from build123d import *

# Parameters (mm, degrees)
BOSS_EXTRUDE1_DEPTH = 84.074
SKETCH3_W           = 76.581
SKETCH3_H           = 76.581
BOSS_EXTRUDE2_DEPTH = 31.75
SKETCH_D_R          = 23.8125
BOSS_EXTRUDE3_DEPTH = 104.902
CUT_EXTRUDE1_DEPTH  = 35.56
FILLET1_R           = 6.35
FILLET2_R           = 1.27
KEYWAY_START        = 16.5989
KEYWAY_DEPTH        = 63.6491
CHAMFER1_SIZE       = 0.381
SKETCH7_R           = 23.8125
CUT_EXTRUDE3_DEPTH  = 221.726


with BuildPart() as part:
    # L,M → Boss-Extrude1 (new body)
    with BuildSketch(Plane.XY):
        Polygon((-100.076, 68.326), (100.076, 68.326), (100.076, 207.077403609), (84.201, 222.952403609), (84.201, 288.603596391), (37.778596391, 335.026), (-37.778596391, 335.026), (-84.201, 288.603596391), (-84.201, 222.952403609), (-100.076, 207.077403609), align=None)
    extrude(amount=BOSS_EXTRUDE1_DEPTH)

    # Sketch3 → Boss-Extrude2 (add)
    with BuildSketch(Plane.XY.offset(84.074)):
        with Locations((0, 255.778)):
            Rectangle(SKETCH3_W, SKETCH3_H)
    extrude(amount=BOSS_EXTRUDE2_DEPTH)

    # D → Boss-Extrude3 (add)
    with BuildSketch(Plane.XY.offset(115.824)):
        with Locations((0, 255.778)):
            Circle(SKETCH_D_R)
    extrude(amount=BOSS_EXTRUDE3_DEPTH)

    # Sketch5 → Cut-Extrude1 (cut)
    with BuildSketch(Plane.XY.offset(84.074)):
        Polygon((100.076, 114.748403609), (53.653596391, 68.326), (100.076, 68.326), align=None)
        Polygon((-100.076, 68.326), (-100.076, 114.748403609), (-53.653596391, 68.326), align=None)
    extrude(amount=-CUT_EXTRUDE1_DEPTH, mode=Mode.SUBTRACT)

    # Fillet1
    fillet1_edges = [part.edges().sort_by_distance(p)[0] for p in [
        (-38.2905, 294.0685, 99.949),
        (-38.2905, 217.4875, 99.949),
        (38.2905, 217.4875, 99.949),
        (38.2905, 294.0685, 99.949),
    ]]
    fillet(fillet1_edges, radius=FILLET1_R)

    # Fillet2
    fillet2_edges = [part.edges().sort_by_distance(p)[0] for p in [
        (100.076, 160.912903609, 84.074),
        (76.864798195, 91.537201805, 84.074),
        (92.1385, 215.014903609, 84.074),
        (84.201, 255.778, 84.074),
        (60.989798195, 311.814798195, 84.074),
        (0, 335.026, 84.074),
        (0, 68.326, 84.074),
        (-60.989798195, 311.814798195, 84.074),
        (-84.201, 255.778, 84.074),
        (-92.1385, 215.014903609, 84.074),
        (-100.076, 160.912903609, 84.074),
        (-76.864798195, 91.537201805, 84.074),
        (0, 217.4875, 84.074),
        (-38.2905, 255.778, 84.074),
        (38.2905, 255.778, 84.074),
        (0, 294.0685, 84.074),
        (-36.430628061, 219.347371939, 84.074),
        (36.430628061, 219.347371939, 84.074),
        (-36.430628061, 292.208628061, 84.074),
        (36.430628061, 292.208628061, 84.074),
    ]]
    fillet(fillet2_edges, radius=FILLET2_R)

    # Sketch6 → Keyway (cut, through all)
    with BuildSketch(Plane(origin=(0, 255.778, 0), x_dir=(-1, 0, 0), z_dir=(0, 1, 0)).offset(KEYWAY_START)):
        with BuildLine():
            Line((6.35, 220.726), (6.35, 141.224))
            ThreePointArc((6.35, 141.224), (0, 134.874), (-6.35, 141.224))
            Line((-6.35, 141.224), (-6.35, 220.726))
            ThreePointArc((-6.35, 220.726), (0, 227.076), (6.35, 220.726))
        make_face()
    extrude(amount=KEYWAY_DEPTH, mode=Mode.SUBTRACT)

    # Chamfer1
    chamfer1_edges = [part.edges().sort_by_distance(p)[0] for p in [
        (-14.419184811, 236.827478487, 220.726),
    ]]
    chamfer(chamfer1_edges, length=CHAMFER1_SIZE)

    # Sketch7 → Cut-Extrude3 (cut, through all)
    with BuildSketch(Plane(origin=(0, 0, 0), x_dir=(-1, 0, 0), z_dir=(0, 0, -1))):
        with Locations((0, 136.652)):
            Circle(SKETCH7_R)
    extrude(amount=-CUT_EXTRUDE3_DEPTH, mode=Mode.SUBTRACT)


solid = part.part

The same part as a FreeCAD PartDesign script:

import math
import FreeCAD as App
import Part
import Sketcher
from FreeCAD import Vector
Q = App.Units.Quantity


def edges_at(feature, points):
    """Names of the edges that pass closest to the given points."""
    edges = feature.Shape.Edges
    near = lambda p: min(range(len(edges)), key=lambda i: edges[i].distToShape(Part.Vertex(*p))[0])
    return sorted({f"Edge{near(p) + 1}" for p in points})

doc = App.newDocument("Part")
body = doc.addObject("PartDesign::Body", "Body")

sketch1 = body.newObject("Sketcher::SketchObject", "Sketch")
sketch1.AttachmentSupport = (doc.getObject("XY_Plane"), [""])
sketch1.MapMode = "FlatFace"
sketch1.addGeometry(Part.LineSegment(Vector(-100.076, 68.326, 0), Vector(100.076, 68.326, 0)), False)
sketch1.addGeometry(Part.LineSegment(Vector(100.076, 68.326, 0), Vector(100.076, 207.077404, 0)), False)
sketch1.addGeometry(Part.LineSegment(Vector(100.076, 207.077404, 0), Vector(84.201, 222.952404, 0)), False)
sketch1.addGeometry(Part.LineSegment(Vector(84.201, 222.952404, 0), Vector(84.201, 288.603596, 0)), False)
sketch1.addGeometry(Part.LineSegment(Vector(84.201, 288.603596, 0), Vector(37.778596, 335.026, 0)), False)
sketch1.addGeometry(Part.LineSegment(Vector(37.778596, 335.026, 0), Vector(-37.778596, 335.026, 0)), False)
sketch1.addGeometry(Part.LineSegment(Vector(-37.778596, 335.026, 0), Vector(-84.201, 288.603596, 0)), False)
sketch1.addGeometry(Part.LineSegment(Vector(-84.201, 288.603596, 0), Vector(-84.201, 222.952404, 0)), False)
sketch1.addGeometry(Part.LineSegment(Vector(-84.201, 222.952404, 0), Vector(-100.076, 207.077404, 0)), False)
sketch1.addGeometry(Part.LineSegment(Vector(-100.076, 207.077404, 0), Vector(-100.076, 68.326, 0)), False)
sketch1.addConstraint(Sketcher.Constraint("Coincident", 0, 2, 1, 1))
sketch1.addConstraint(Sketcher.Constraint("Coincident", 1, 2, 2, 1))
sketch1.addConstraint(Sketcher.Constraint("Coincident", 2, 2, 3, 1))
sketch1.addConstraint(Sketcher.Constraint("Coincident", 3, 2, 4, 1))
sketch1.addConstraint(Sketcher.Constraint("Coincident", 4, 2, 5, 1))
sketch1.addConstraint(Sketcher.Constraint("Coincident", 5, 2, 6, 1))
sketch1.addConstraint(Sketcher.Constraint("Coincident", 6, 2, 7, 1))
sketch1.addConstraint(Sketcher.Constraint("Coincident", 7, 2, 8, 1))
sketch1.addConstraint(Sketcher.Constraint("Coincident", 8, 2, 9, 1))
sketch1.addConstraint(Sketcher.Constraint("Coincident", 9, 2, 0, 1))
sketch1.addConstraint(Sketcher.Constraint("Horizontal", 0))
sketch1.addConstraint(Sketcher.Constraint("Vertical", 1))
sketch1.addConstraint(Sketcher.Constraint("Vertical", 3))
sketch1.addConstraint(Sketcher.Constraint("Horizontal", 5))
sketch1.addConstraint(Sketcher.Constraint("Vertical", 7))
sketch1.addConstraint(Sketcher.Constraint("Vertical", 9))
sketch1.addConstraint(Sketcher.Constraint("Symmetric", 3, 2, 6, 2, -2))
sketch1.addConstraint(Sketcher.Constraint("Symmetric", 1, 2, 8, 2, -2))
sketch1.addConstraint(Sketcher.Constraint("Parallel", 2, 4))
sketch1.addConstraint(Sketcher.Constraint("Perpendicular", 4, 6))
sketch1.addConstraint(Sketcher.Constraint("Parallel", 6, 8))
sketch1.addConstraint(Sketcher.Constraint("Horizontal", 2, 2, 7, 2))
sketch1.addConstraint(Sketcher.Constraint("DistanceX", 0, 1, 0, 2, Q("7.88 in")))
sketch1.addConstraint(Sketcher.Constraint("DistanceY", 0, 2, 4, 2, Q("10.5 in")))
sketch1.addConstraint(Sketcher.Constraint("DistanceY", -1, 1, 0, 2, Q("2.69 in")))
sketch1.addConstraint(Sketcher.Constraint("DistanceX", 6, 2, 3, 2, Q("6.63 in")))
sketch1.addConstraint(Sketcher.Constraint("DistanceX", 5, 2, 5, 1, Q("75.557193 mm")))
sketch1.addConstraint(Sketcher.Constraint("DistanceY", 1, 1, 1, 2, Q("138.751404 mm")))
pad1 = body.newObject("PartDesign::Pad", "Pad")
pad1.Profile = sketch1
pad1.Length = Q("3.31 in")

sketch2 = body.newObject("Sketcher::SketchObject", "Sketch001")
sketch2.AttachmentSupport = (doc.getObject("XY_Plane"), [""])
sketch2.MapMode = "FlatFace"
sketch2.AttachmentOffset = App.Placement(Vector(0, 0, 3.31 * 25.4), App.Rotation())
sketch2.addGeometry(Part.LineSegment(Vector(-38.2905, 294.0685, 0), Vector(-38.2905, 217.4875, 0)), False)
sketch2.addGeometry(Part.LineSegment(Vector(-38.2905, 217.4875, 0), Vector(38.2905, 217.4875, 0)), False)
sketch2.addGeometry(Part.LineSegment(Vector(38.2905, 217.4875, 0), Vector(38.2905, 294.0685, 0)), False)
sketch2.addGeometry(Part.LineSegment(Vector(38.2905, 294.0685, 0), Vector(-38.2905, 294.0685, 0)), False)
sketch2.addConstraint(Sketcher.Constraint("Coincident", 0, 2, 1, 1))
sketch2.addConstraint(Sketcher.Constraint("Coincident", 1, 2, 2, 1))
sketch2.addConstraint(Sketcher.Constraint("Coincident", 2, 2, 3, 1))
sketch2.addConstraint(Sketcher.Constraint("Coincident", 3, 2, 0, 1))
sketch2.addConstraint(Sketcher.Constraint("Vertical", 0))
sketch2.addConstraint(Sketcher.Constraint("Horizontal", 1))
sketch2.addConstraint(Sketcher.Constraint("Vertical", 2))
sketch2.addConstraint(Sketcher.Constraint("Horizontal", 3))
sketch2.addConstraint(Sketcher.Constraint("Equal", 3, 0))
sketch2.addConstraint(Sketcher.Constraint("DistanceX", 1, 1, 1, 2, Q("3.015 in")))
sketch2.addConstraint(Sketcher.Constraint("DistanceY", -1, 1, 0, 2, Q("8.5625 in")))
sketch2.addConstraint(Sketcher.Constraint("DistanceX", 0, 2, -1, 1, Q("1.5075 in")))
pad2 = body.newObject("PartDesign::Pad", "Pad001")
pad2.Profile = sketch2
pad2.Length = Q("1.25 in")

sketch3 = body.newObject("Sketcher::SketchObject", "Sketch002")
sketch3.AttachmentSupport = (doc.getObject("XY_Plane"), [""])
sketch3.MapMode = "FlatFace"
sketch3.AttachmentOffset = App.Placement(Vector(0, 0, 4.56 * 25.4), App.Rotation())
sketch3.addGeometry(Part.Circle(Vector(0, 255.778, 0), Vector(0, 0, 1), 23.8125), False)
sketch3.addConstraint(Sketcher.Constraint("PointOnObject", 0, 3, -2))
sketch3.addConstraint(Sketcher.Constraint("Diameter", 0, Q("1.875 in")))
sketch3.addConstraint(Sketcher.Constraint("DistanceY", -1, 1, 0, 3, Q("10.07 in")))
pad3 = body.newObject("PartDesign::Pad", "Pad002")
pad3.Profile = sketch3
pad3.Length = Q("4.13 in")

sketch4 = body.newObject("Sketcher::SketchObject", "Sketch003")
sketch4.AttachmentSupport = (doc.getObject("XY_Plane"), [""])
sketch4.MapMode = "FlatFace"
sketch4.AttachmentOffset = App.Placement(Vector(0, 0, 3.31 * 25.4), App.Rotation())
sketch4.addGeometry(Part.LineSegment(Vector(100.076, 114.748404, 0), Vector(53.653596, 68.326, 0)), False)
sketch4.addGeometry(Part.LineSegment(Vector(53.653596, 68.326, 0), Vector(100.076, 68.326, 0)), False)
sketch4.addGeometry(Part.LineSegment(Vector(100.076, 68.326, 0), Vector(100.076, 114.748404, 0)), False)
sketch4.addGeometry(Part.LineSegment(Vector(-100.076, 114.748404, 0), Vector(-100.076, 68.326, 0)), False)
sketch4.addGeometry(Part.LineSegment(Vector(-100.076, 68.326, 0), Vector(-53.653596, 68.326, 0)), False)
sketch4.addGeometry(Part.LineSegment(Vector(-53.653596, 68.326, 0), Vector(-100.076, 114.748404, 0)), False)
sketch4.addConstraint(Sketcher.Constraint("Coincident", 0, 2, 1, 1))
sketch4.addConstraint(Sketcher.Constraint("Coincident", 1, 2, 2, 1))
sketch4.addConstraint(Sketcher.Constraint("Coincident", 2, 2, 0, 1))
sketch4.addConstraint(Sketcher.Constraint("Coincident", 3, 2, 4, 1))
sketch4.addConstraint(Sketcher.Constraint("Coincident", 4, 2, 5, 1))
sketch4.addConstraint(Sketcher.Constraint("Coincident", 5, 2, 3, 1))
sketch4.addConstraint(Sketcher.Constraint("Horizontal", 1))
sketch4.addConstraint(Sketcher.Constraint("Vertical", 2))
sketch4.addConstraint(Sketcher.Constraint("Vertical", 3))
sketch4.addConstraint(Sketcher.Constraint("Horizontal", 4))
sketch4.addConstraint(Sketcher.Constraint("Symmetric", 1, 2, 3, 2, -2))
sketch4.addConstraint(Sketcher.Constraint("Perpendicular", 0, 5))
sketch4.addConstraint(Sketcher.Constraint("Horizontal", 2, 2, 5, 2))
sketch4.addConstraint(Sketcher.Constraint("Equal", 1, 4))
sketch4.addConstraint(Sketcher.Constraint("DistanceY", -1, 1, 0, 2, Q("2.69 in")))
sketch4.addConstraint(Sketcher.Constraint("DistanceX", -1, 1, 1, 2, Q("3.94 in")))
sketch4.addConstraint(Sketcher.Constraint("DistanceX", 1, 1, 1, 2, Q("46.422404 mm")))
pocket1 = body.newObject("PartDesign::Pocket", "Pocket")
pocket1.Profile = sketch4
pocket1.Length = Q("1.4 in")
doc.recompute()

fillet = body.newObject("PartDesign::Fillet", "Fillet")
fillet.Base = (pocket1, edges_at(pocket1, [
    (-38.291, 294.068, 99.949),
    (-38.291, 217.488, 99.949),
    (38.291, 217.488, 99.949),
    (38.291, 294.068, 99.949),
]))
fillet.Radius = Q("0.25 in")
doc.recompute()

fillet2 = body.newObject("PartDesign::Fillet", "Fillet001")
fillet2.Base = (fillet, edges_at(fillet, [
    (100.076, 160.913, 84.074),
    (76.865, 91.537, 84.074),
    (92.138, 215.015, 84.074),
    (84.201, 255.778, 84.074),
    (60.99, 311.815, 84.074),
    (0, 335.026, 84.074),
    (0, 68.326, 84.074),
    (-60.99, 311.815, 84.074),
    (-84.201, 255.778, 84.074),
    (-92.138, 215.015, 84.074),
    (-100.076, 160.913, 84.074),
    (-76.865, 91.537, 84.074),
    (0, 217.488, 84.074),
    (-38.291, 255.778, 84.074),
    (38.291, 255.778, 84.074),
    (0, 294.068, 84.074),
    (-36.431, 219.347, 84.074),
    (36.431, 219.347, 84.074),
    (-36.431, 292.209, 84.074),
    (36.431, 292.209, 84.074),
]))
fillet2.Radius = Q("0.05 in")

sketch5 = body.newObject("Sketcher::SketchObject", "Sketch004")
sketch5.AttachmentSupport = (doc.getObject("XZ_Plane"), [""])
sketch5.MapMode = "FlatFace"
sketch5.AttachmentOffset = App.Placement(Vector(0, 0, -10.7235 * 25.4), App.Rotation())
sketch5.addGeometry(Part.LineSegment(Vector(-6.35, 141.224, 0), Vector(-6.35, 220.726, 0)), False)
sketch5.addGeometry(Part.ArcOfCircle(Part.Circle(Vector(0, 220.726, 0), Vector(0, 0, 1), 6.35), math.radians(0), math.radians(180)), False)
sketch5.addGeometry(Part.LineSegment(Vector(6.35, 220.726, 0), Vector(6.35, 141.224, 0)), False)
sketch5.addGeometry(Part.ArcOfCircle(Part.Circle(Vector(0, 141.224, 0), Vector(0, 0, 1), 6.35), math.radians(180), math.radians(360)), False)
sketch5.addConstraint(Sketcher.Constraint("Tangent", 0, 2, 1, 2))
sketch5.addConstraint(Sketcher.Constraint("Tangent", 1, 1, 2, 1))
sketch5.addConstraint(Sketcher.Constraint("Tangent", 2, 2, 3, 2))
sketch5.addConstraint(Sketcher.Constraint("Tangent", 3, 1, 0, 1))
sketch5.addConstraint(Sketcher.Constraint("Vertical", 0))
sketch5.addConstraint(Sketcher.Constraint("Vertical", 2))
sketch5.addConstraint(Sketcher.Constraint("PointOnObject", 1, 3, -2))
sketch5.addConstraint(Sketcher.Constraint("Radius", 1, Q("0.25 in")))
sketch5.addConstraint(Sketcher.Constraint("DistanceY", 0, 1, 0, 2, Q("3.13 in")))
sketch5.addConstraint(Sketcher.Constraint("DistanceY", -1, 1, 1, 3, Q("8.69 in")))
pocket2 = body.newObject("PartDesign::Pocket", "Pocket001")
pocket2.Profile = sketch5
pocket2.Type = "ThroughAll"
doc.recompute()

chamfer = body.newObject("PartDesign::Chamfer", "Chamfer")
chamfer.Base = (pocket2, edges_at(pocket2, [(-14.419, 236.827, 220.726)]))
chamfer.Size = Q("0.015 in")

sketch6 = body.newObject("Sketcher::SketchObject", "Sketch005")
sketch6.AttachmentSupport = (doc.getObject("XY_Plane"), [""])
sketch6.MapMode = "FlatFace"
sketch6.addGeometry(Part.Circle(Vector(0, 136.652, 0), Vector(0, 0, 1), 23.8125), False)
sketch6.addConstraint(Sketcher.Constraint("PointOnObject", 0, 3, -2))
sketch6.addConstraint(Sketcher.Constraint("Diameter", 0, Q("1.875 in")))
sketch6.addConstraint(Sketcher.Constraint("DistanceY", -1, 1, 0, 3, Q("5.38 in")))
pocket3 = body.newObject("PartDesign::Pocket", "Pocket002")
pocket3.Profile = sketch6
pocket3.Type = "ThroughAll"
pocket3.Reversed = True

doc.recompute()
